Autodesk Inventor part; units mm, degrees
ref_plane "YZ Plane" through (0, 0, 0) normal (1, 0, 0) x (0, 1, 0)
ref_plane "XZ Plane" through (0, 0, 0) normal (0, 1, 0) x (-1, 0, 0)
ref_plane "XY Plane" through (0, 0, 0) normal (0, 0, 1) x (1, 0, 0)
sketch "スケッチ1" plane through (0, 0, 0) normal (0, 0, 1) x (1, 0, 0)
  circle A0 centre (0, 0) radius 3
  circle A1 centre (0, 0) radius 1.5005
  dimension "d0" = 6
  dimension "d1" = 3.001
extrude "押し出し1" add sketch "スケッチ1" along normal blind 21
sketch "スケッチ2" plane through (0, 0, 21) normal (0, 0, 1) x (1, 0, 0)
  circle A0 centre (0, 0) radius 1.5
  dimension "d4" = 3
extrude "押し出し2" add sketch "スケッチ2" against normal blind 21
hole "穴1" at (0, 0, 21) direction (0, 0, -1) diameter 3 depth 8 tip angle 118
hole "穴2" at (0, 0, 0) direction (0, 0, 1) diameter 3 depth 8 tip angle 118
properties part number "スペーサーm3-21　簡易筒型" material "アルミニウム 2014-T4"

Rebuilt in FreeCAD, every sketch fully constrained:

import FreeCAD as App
import Part
import Sketcher

V = App.Vector
Q = App.Units.Quantity

doc = App.newDocument("Part")
body = doc.addObject("PartDesign::Body", "Body")
body.AllowCompound = True

# Sketch on XY plane
sketch1 = doc.addObject("Sketcher::SketchObject", "Sketch")
body.addObject(sketch1)
sketch1.AttachmentSupport = (doc.XY_Plane, [""])
sketch1.MapMode = "FlatFace"
sketch1.addGeometry([
    Part.Circle(V(0, 0, 0), V(0, 0, 1), 3),
    Part.Circle(V(0, 0, 0), V(0, 0, 1), 1.5005),
], False)
sketch1.addConstraint([
    Sketcher.Constraint("Coincident", 0, 3, -1, 1),
    Sketcher.Constraint("Coincident", 1, 3, -1, 1),
    Sketcher.Constraint("Diameter", 0, Q("6 mm")),
    Sketcher.Constraint("Diameter", 1, Q("3.001 mm")),
])
pad1 = doc.addObject("PartDesign::Pad", "Pad")
body.addObject(pad1)
pad1.Profile = sketch1
pad1.Length = 21

# Sketch on XY plane
sketch2 = doc.addObject("Sketcher::SketchObject", "Sketch001")
body.addObject(sketch2)
sketch2.AttachmentSupport = (doc.XY_Plane, [""])
sketch2.MapMode = "FlatFace"
sketch2.AttachmentOffset = App.Placement(V(0, 0, 21), App.Rotation())
sketch2.addGeometry(Part.Circle(V(0, 0, 0), V(0, 0, 1), 1.5), False)
sketch2.addConstraint([
    Sketcher.Constraint("Coincident", 0, 3, -1, 1),
    Sketcher.Constraint("Diameter", 0, Q("3 mm")),
])
pad2 = doc.addObject("PartDesign::Pad", "Pad001")
body.addObject(pad2)
pad2.Profile = sketch2
pad2.Length = 21
pad2.Reversed = True

# Sketch on XY plane
sketch3 = doc.addObject("Sketcher::SketchObject", "Sketch002")
body.addObject(sketch3)
sketch3.AttachmentSupport = (doc.XY_Plane, [""])
sketch3.MapMode = "FlatFace"
sketch3.AttachmentOffset = App.Placement(V(0, 0, 21), App.Rotation())
sketch3.addGeometry(Part.Circle(V(0, 0, 0), V(0, 0, 1), 1.5), False)
sketch3.addConstraint([
    Sketcher.Constraint("Coincident", 0, 3, -1, 1),
    Sketcher.Constraint("Diameter", 0, Q("3 mm")),
])
doc.recompute()
hole = doc.addObject("PartDesign::Hole", "Hole")
body.addObject(hole)
hole.Profile = sketch3
hole.ThreadType = "None"
hole.Diameter = 3
hole.DepthType = "Dimension"
hole.Depth = 8
hole.DrillPoint = "Angled"
hole.DrillPointAngle = 118

# Sketch on XY plane
sketch4 = doc.addObject("Sketcher::SketchObject", "Sketch003")
body.addObject(sketch4)
sketch4.AttachmentSupport = (doc.XY_Plane, [""])
sketch4.MapMode = "FlatFace"
sketch4.addGeometry(Part.Circle(V(0, 0, 0), V(0, 0, 1), 1.5), False)
sketch4.addConstraint([
    Sketcher.Constraint("Coincident", 0, 3, -1, 1),
    Sketcher.Constraint("Diameter", 0, Q("3 mm")),
])
doc.recompute()
hole2 = doc.addObject("PartDesign::Hole", "Hole001")
body.addObject(hole2)
hole2.Profile = sketch4
hole2.ThreadType = "None"
hole2.Diameter = 3
hole2.DepthType = "Dimension"
hole2.Depth = 8
hole2.DrillPoint = "Angled"
hole2.DrillPointAngle = 118
hole2.Reversed = True

doc.recompute()
